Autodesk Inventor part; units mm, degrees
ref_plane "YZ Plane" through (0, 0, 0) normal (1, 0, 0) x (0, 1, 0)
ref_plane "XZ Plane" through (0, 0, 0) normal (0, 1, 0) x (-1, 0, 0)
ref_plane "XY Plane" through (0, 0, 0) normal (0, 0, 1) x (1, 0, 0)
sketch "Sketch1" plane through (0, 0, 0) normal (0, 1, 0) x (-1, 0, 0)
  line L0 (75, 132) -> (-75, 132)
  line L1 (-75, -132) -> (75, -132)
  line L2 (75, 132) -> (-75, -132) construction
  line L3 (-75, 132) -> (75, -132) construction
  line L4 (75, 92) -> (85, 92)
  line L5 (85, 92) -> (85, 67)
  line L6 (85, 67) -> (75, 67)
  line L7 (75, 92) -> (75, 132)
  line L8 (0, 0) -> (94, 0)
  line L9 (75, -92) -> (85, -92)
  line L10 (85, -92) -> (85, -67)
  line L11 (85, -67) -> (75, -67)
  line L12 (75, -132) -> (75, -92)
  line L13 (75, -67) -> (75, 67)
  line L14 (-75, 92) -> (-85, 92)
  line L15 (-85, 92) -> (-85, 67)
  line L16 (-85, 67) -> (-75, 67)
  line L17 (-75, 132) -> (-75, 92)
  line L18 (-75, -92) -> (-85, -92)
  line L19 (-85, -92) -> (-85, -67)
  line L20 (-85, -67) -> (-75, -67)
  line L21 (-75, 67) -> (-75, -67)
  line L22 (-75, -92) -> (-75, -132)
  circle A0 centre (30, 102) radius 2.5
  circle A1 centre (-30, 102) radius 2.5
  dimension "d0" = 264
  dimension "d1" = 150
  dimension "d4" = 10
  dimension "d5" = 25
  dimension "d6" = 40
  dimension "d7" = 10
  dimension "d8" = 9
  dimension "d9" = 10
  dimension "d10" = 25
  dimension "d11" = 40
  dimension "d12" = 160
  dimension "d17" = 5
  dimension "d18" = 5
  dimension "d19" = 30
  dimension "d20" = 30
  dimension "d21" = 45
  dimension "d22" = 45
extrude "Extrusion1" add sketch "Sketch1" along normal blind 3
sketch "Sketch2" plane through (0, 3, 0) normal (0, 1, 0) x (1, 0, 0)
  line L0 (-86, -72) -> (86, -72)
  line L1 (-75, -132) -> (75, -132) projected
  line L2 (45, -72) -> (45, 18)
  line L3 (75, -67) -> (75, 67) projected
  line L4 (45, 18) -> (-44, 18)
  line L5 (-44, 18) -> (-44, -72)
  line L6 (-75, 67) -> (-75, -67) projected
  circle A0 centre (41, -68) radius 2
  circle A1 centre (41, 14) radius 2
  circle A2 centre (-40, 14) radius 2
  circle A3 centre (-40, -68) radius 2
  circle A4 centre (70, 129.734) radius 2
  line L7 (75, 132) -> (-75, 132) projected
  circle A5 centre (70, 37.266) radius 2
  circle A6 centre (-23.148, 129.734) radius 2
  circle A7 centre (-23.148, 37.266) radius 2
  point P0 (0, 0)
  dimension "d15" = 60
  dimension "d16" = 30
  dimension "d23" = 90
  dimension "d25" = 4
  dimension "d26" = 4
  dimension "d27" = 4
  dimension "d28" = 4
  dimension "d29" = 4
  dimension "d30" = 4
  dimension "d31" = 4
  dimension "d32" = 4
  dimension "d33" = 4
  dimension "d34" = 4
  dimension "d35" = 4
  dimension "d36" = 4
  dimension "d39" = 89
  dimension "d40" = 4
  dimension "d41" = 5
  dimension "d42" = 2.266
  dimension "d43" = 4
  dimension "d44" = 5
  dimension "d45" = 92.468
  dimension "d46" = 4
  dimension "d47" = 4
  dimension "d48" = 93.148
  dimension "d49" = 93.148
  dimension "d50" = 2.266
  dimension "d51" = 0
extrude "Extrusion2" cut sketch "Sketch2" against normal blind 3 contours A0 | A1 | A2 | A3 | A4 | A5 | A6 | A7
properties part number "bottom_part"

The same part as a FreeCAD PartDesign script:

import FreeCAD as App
import Part
import Sketcher

doc = App.newDocument("Part")
body = doc.addObject("PartDesign::Body", "Body")

sketch1 = body.newObject("Sketcher::SketchObject", "Sketch")
sketch1.AttachmentSupport = (doc.getObject("XZ_Plane"), [""])
sketch1.MapMode = "FlatFace"
sketch1.addGeometry([
    Part.LineSegment(App.Vector(-75, 92, 0), App.Vector(-75, 132, 0)),
    Part.LineSegment(App.Vector(-75, 132, 0), App.Vector(75, 132, 0)),
    Part.LineSegment(App.Vector(75, 132, 0), App.Vector(75, 92, 0)),
    Part.LineSegment(App.Vector(75, 92, 0), App.Vector(85, 92, 0)),
    Part.LineSegment(App.Vector(85, 92, 0), App.Vector(85, 67, 0)),
    Part.LineSegment(App.Vector(85, 67, 0), App.Vector(75, 67, 0)),
    Part.LineSegment(App.Vector(75, 67, 0), App.Vector(75, -67, 0)),
    Part.LineSegment(App.Vector(75, -67, 0), App.Vector(85, -67, 0)),
    Part.LineSegment(App.Vector(85, -67, 0), App.Vector(85, -92, 0)),
    Part.LineSegment(App.Vector(85, -92, 0), App.Vector(75, -92, 0)),
    Part.LineSegment(App.Vector(75, -92, 0), App.Vector(75, -132, 0)),
    Part.LineSegment(App.Vector(75, -132, 0), App.Vector(-75, -132, 0)),
    Part.LineSegment(App.Vector(-75, -132, 0), App.Vector(-75, -92, 0)),
    Part.LineSegment(App.Vector(-75, -92, 0), App.Vector(-85, -92, 0)),
    Part.LineSegment(App.Vector(-85, -92, 0), App.Vector(-85, -67, 0)),
    Part.LineSegment(App.Vector(-85, -67, 0), App.Vector(-75, -67, 0)),
    Part.LineSegment(App.Vector(-75, -67, 0), App.Vector(-75, 67, 0)),
    Part.LineSegment(App.Vector(-75, 67, 0), App.Vector(-85, 67, 0)),
    Part.LineSegment(App.Vector(-85, 67, 0), App.Vector(-85, 92, 0)),
    Part.LineSegment(App.Vector(-85, 92, 0), App.Vector(-75, 92, 0)),
    Part.Circle(App.Vector(30, 102, 0), App.Vector(0, 0, 1), 2.5),
    Part.Circle(App.Vector(-30, 102, 0), App.Vector(0, 0, 1), 2.5),
], False)
sketch1.addConstraint([
    Sketcher.Constraint("Coincident", 0, 2, 1, 1),
    Sketcher.Constraint("Coincident", 1, 2, 2, 1),
    Sketcher.Constraint("Coincident", 2, 2, 3, 1),
    Sketcher.Constraint("Coincident", 3, 2, 4, 1),
    Sketcher.Constraint("Coincident", 4, 2, 5, 1),
    Sketcher.Constraint("Coincident", 5, 2, 6, 1),
    Sketcher.Constraint("Coincident", 6, 2, 7, 1),
    Sketcher.Constraint("Coincident", 7, 2, 8, 1),
    Sketcher.Constraint("Coincident", 8, 2, 9, 1),
    Sketcher.Constraint("Coincident", 9, 2, 10, 1),
    Sketcher.Constraint("Coincident", 10, 2, 11, 1),
    Sketcher.Constraint("Coincident", 11, 2, 12, 1),
    Sketcher.Constraint("Coincident", 12, 2, 13, 1),
    Sketcher.Constraint("Coincident", 13, 2, 14, 1),
    Sketcher.Constraint("Coincident", 14, 2, 15, 1),
    Sketcher.Constraint("Coincident", 15, 2, 16, 1),
    Sketcher.Constraint("Coincident", 16, 2, 17, 1),
    Sketcher.Constraint("Coincident", 17, 2, 18, 1),
    Sketcher.Constraint("Coincident", 18, 2, 19, 1),
    Sketcher.Constraint("Coincident", 19, 2, 0, 1),
    Sketcher.Constraint("Vertical", 0),
    Sketcher.Constraint("Horizontal", 1),
    Sketcher.Constraint("Vertical", 2),
    Sketcher.Constraint("Horizontal", 3),
    Sketcher.Constraint("Vertical", 4),
    Sketcher.Constraint("Horizontal", 5),
    Sketcher.Constraint("Vertical", 6),
    Sketcher.Constraint("Horizontal", 7),
    Sketcher.Constraint("Vertical", 8),
    Sketcher.Constraint("Horizontal", 9),
    Sketcher.Constraint("Vertical", 10),
    Sketcher.Constraint("Horizontal", 11),
    Sketcher.Constraint("Vertical", 12),
    Sketcher.Constraint("Horizontal", 13),
    Sketcher.Constraint("Vertical", 14),
    Sketcher.Constraint("Horizontal", 15),
    Sketcher.Constraint("Vertical", 16),
    Sketcher.Constraint("Horizontal", 17),
    Sketcher.Constraint("Vertical", 18),
    Sketcher.Constraint("Horizontal", 19),
    Sketcher.Constraint("Equal", 20, 21),
    Sketcher.Constraint("Symmetric", 0, 2, 10, 2, -1, 1),
    Sketcher.Constraint("Symmetric", 2, 2, 12, 2, -1, 1),
    Sketcher.Constraint("Symmetric", 4, 2, 14, 2, -1, 1),
    Sketcher.Constraint("Symmetric", 6, 2, 16, 2, -1, 1),
    Sketcher.Constraint("Symmetric", 8, 2, 18, 2, -1, 1),
    Sketcher.Constraint("Symmetric", 20, 3, 21, 3, -2),
    Sketcher.Constraint("Symmetric", 9, 2, 12, 2, -2),
    Sketcher.Constraint("Symmetric", 7, 2, 14, 2, -2),
    Sketcher.Constraint("Vertical", 2, 2, 5, 2),
    Sketcher.Constraint("Diameter", 20, 5.0),
    Sketcher.Constraint("DistanceX", 1, 1, 1, 2, 150.0),
    Sketcher.Constraint("DistanceX", 3, 1, 3, 2, 10.0),
    Sketcher.Constraint("DistanceY", 0, 1, 0, 2, 40.0),
    Sketcher.Constraint("DistanceY", 4, 2, 4, 1, 25.0),
    Sketcher.Constraint("DistanceX", -1, 1, 20, 3, 30.0),
    Sketcher.Constraint("DistanceY", 21, 3, 0, 2, 30.0),
    Sketcher.Constraint("DistanceY", 6, 2, 6, 1, 134.0),
])
pad1 = body.newObject("PartDesign::Pad", "Pad")
pad1.Profile = sketch1
pad1.Length = 3
pad1.Reversed = True

sketch2 = body.newObject("Sketcher::SketchObject", "Sketch001")
sketch2.AttachmentSupport = (doc.getObject("XZ_Plane"), [""])
sketch2.MapMode = "FlatFace"
sketch2.AttachmentOffset = App.Placement(App.Vector(0, 0, -3), App.Rotation())
sketch2.addGeometry([
    Part.Circle(App.Vector(41, 68, 0), App.Vector(0, 0, 1), 2),
    Part.Circle(App.Vector(41, -14, 0), App.Vector(0, 0, 1), 2),
    Part.Circle(App.Vector(-40, -14, 0), App.Vector(0, 0, 1), 2),
    Part.Circle(App.Vector(-40, 68, 0), App.Vector(0, 0, 1), 2),
    Part.Circle(App.Vector(70, -129.7, 0), App.Vector(0, 0, 1), 2),
    Part.Circle(App.Vector(70, -37.3, 0), App.Vector(0, 0, 1), 2),
    Part.Circle(App.Vector(-23.1, -129.7, 0), App.Vector(0, 0, 1), 2),
    Part.Circle(App.Vector(-23.1, -37.3, 0), App.Vector(0, 0, 1), 2),
], False)
sketch2.addConstraint([
    Sketcher.Constraint("Equal", 0, 1),
    Sketcher.Constraint("Equal", 1, 2),
    Sketcher.Constraint("Equal", 2, 3),
    Sketcher.Constraint("Equal", 3, 4),
    Sketcher.Constraint("Equal", 4, 5),
    Sketcher.Constraint("Equal", 5, 6),
    Sketcher.Constraint("Equal", 6, 7),
    Sketcher.Constraint("Horizontal", 1, 3, 2, 3),
    Sketcher.Constraint("Horizontal", 0, 3, 3, 3),
    Sketcher.Constraint("Horizontal", 4, 3, 6, 3),
    Sketcher.Constraint("Horizontal", 5, 3, 7, 3),
    Sketcher.Constraint("Vertical", 0, 3, 1, 3),
    Sketcher.Constraint("Vertical", 2, 3, 3, 3),
    Sketcher.Constraint("Vertical", 4, 3, 5, 3),
    Sketcher.Constraint("Vertical", 6, 3, 7, 3),
    Sketcher.Constraint("Diameter", 0, 4.0),
    Sketcher.Constraint("DistanceX", -1, 1, 0, 3, 41.0),
    Sketcher.Constraint("DistanceY", -1, 1, 0, 3, 68.0),
    Sketcher.Constraint("DistanceY", 1, 3, -1, 1, 14.0),
    Sketcher.Constraint("DistanceX", 2, 3, -1, 1, 40.0),
    Sketcher.Constraint("DistanceX", -1, 1, 4, 3, 70.0),
    Sketcher.Constraint("DistanceY", 4, 3, 5, 3, 92.468),
    Sketcher.Constraint("DistanceX", 6, 3, 4, 3, 93.148),
    Sketcher.Constraint("DistanceY", 4, 3, -1, 1, 129.734),
])
pocket1 = body.newObject("PartDesign::Pocket", "Pocket")
pocket1.Profile = sketch2
pocket1.Length = 3
pocket1.Reversed = True

doc.recompute()
